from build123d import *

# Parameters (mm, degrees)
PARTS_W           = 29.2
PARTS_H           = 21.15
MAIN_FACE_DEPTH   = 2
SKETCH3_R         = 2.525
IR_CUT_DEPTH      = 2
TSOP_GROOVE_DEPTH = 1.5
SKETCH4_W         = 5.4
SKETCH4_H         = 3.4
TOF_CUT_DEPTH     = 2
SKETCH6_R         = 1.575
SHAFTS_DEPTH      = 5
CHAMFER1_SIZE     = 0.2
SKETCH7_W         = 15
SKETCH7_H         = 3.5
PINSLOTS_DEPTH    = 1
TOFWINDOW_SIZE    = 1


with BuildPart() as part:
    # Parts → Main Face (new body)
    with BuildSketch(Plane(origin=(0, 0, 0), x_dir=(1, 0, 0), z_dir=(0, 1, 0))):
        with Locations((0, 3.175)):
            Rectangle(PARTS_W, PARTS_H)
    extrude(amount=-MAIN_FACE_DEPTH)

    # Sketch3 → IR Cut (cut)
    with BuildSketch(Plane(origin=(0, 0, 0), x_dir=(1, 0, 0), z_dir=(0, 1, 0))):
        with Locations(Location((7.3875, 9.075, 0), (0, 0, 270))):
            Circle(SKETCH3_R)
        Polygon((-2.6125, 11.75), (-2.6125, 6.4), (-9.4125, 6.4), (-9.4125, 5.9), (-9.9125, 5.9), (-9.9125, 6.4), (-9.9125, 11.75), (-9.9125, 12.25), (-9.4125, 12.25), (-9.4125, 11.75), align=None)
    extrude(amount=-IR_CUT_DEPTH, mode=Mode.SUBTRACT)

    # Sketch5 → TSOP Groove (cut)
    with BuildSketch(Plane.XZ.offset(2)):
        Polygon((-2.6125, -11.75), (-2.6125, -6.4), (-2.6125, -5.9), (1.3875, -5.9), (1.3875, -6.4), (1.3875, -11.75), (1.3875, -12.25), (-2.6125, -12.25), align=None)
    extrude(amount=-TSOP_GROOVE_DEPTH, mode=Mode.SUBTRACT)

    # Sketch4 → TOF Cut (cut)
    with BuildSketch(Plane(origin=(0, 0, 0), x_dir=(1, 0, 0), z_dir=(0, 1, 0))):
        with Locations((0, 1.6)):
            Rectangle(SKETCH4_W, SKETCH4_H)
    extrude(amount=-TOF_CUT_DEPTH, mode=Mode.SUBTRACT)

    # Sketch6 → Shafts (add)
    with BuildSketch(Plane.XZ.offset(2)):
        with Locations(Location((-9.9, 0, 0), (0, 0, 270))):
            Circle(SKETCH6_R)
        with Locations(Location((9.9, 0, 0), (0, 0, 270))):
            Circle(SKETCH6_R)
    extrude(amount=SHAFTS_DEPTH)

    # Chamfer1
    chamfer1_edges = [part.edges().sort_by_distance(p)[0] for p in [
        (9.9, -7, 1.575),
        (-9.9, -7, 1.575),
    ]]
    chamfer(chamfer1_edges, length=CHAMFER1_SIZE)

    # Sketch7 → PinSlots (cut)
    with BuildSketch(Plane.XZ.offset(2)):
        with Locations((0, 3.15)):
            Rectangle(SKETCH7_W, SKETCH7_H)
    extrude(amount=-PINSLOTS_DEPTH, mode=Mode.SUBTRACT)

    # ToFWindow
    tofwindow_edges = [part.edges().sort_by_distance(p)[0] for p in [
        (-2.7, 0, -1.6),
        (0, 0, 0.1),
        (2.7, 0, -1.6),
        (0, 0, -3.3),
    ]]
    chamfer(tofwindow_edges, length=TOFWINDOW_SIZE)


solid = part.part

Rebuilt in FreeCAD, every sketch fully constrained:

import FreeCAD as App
import Part
import Sketcher


def edges_at(feature, points):
    """Names of the edges that pass closest to the given points."""
    edges = feature.Shape.Edges
    near = lambda p: min(range(len(edges)), key=lambda i: edges[i].distToShape(Part.Vertex(*p))[0])
    return sorted({f"Edge{near(p) + 1}" for p in points})


def add_polygon(sketch, points):
    """Adds a closed chain of lines whose ends are joined by coincident constraints."""
    first, n = sketch.GeometryCount, len(points)
    for a, b in zip(points, points[1:] + points[:1]):
        sketch.addGeometry(Part.LineSegment(App.Vector(*a, 0), App.Vector(*b, 0)), False)
    for i in range(n):
        sketch.addConstraint(Sketcher.Constraint("Coincident", first + i, 2, first + (i + 1) % n, 1))

doc = App.newDocument("Part")
body = doc.addObject("PartDesign::Body", "Body")

# Sketch on XZ plane
sketch1 = body.newObject("Sketcher::SketchObject", "Sketch")
sketch1.AttachmentSupport = (doc.getObject("XZ_Plane"), [""])
sketch1.MapMode = "FlatFace"
add_polygon(sketch1, [(-15, -14), (-15, 7), (15, 7), (15, -14)])  # lines 0-3
sketch1.addConstraint([
    Sketcher.Constraint("Vertical", 0),
    Sketcher.Constraint("Horizontal", 1),
    Sketcher.Constraint("Vertical", 2),
    Sketcher.Constraint("Horizontal", 3),
    Sketcher.Constraint("DistanceX", 1, 1, 1, 2, 29.2),
    Sketcher.Constraint("DistanceY", 0, 1, 0, 2, 21.15),
    Sketcher.Constraint("DistanceX", 0, 2, -1, 1, 14.6),
    Sketcher.Constraint("DistanceY", -1, 1, 0, 2, 7.4),
])
pad1 = body.newObject("PartDesign::Pad", "Pad")
pad1.Profile = sketch1
pad1.Length = 2

# Sketch on XZ plane
sketch2 = body.newObject("Sketcher::SketchObject", "Sketch001")
sketch2.AttachmentSupport = (doc.getObject("XZ_Plane"), [""])
sketch2.MapMode = "FlatFace"
sketch2.addGeometry(Part.Circle(App.Vector(7.4, -9.1, 0), App.Vector(0, 0, 1), 2.5), False)  # 0
add_polygon(sketch2, [(-2.6, -6.4), (-2.6, -11.8), (-9.4, -11.8), (-9.4, -12.2), (-9.9, -12.2), (-9.9, -5.9), (-9.4, -5.9), (-9.4, -6.4)])  # lines 1-8
sketch2.addConstraint([
    Sketcher.Constraint("Vertical", 1),
    Sketcher.Constraint("Horizontal", 2),
    Sketcher.Constraint("Vertical", 3),
    Sketcher.Constraint("Horizontal", 4),
    Sketcher.Constraint("Vertical", 5),
    Sketcher.Constraint("Horizontal", 6),
    Sketcher.Constraint("Vertical", 7),
    Sketcher.Constraint("Horizontal", 8),
    Sketcher.Constraint("Vertical", 3, 2, 6, 2),
    Sketcher.Constraint("Equal", 6, 3),
    Sketcher.Constraint("Equal", 3, 7),
    Sketcher.Constraint("Diameter", 0, 5.05),
    Sketcher.Constraint("DistanceX", 2, 2, 2, 1, 6.8),
    Sketcher.Constraint("DistanceX", 4, 2, 4, 1, 0.5),
    Sketcher.Constraint("DistanceX", 1, 2, 0, 3, 10.0),
    Sketcher.Constraint("DistanceY", 1, 2, 1, 1, 5.35),
    Sketcher.Constraint("DistanceY", 5, 2, -1, 1, 5.9),
    Sketcher.Constraint("DistanceY", 0, 3, -1, 1, 9.075),
    Sketcher.Constraint("DistanceX", -1, 1, 0, 3, 7.3875),
])
pocket1 = body.newObject("PartDesign::Pocket", "Pocket")
pocket1.Profile = sketch2
pocket1.Length = 2
pocket1.Reversed = True

# Sketch on XZ plane
sketch3 = body.newObject("Sketcher::SketchObject", "Sketch002")
sketch3.AttachmentSupport = (doc.getObject("XZ_Plane"), [""])
sketch3.MapMode = "FlatFace"
sketch3.AttachmentOffset = App.Placement(App.Vector(0, 0, 2), App.Rotation())
add_polygon(sketch3, [(-2.6, -5.9), (-2.6, -12.2), (1.4, -12.2), (1.4, -5.9)])  # lines 0-3
sketch3.addConstraint([
    Sketcher.Constraint("Vertical", 0),
    Sketcher.Constraint("Horizontal", 1),
    Sketcher.Constraint("Vertical", 2),
    Sketcher.Constraint("Horizontal", 3),
    Sketcher.Constraint("DistanceX", 1, 1, 1, 2, 4.0),
    Sketcher.Constraint("DistanceY", 0, 2, 0, 1, 6.35),
    Sketcher.Constraint("DistanceY", 2, 2, -1, 1, 5.9),
    Sketcher.Constraint("DistanceX", 0, 2, -1, 1, 2.6125),
])
pocket2 = body.newObject("PartDesign::Pocket", "Pocket001")
pocket2.Profile = sketch3
pocket2.Length = 1.5

# Sketch on XZ plane
sketch4 = body.newObject("Sketcher::SketchObject", "Sketch003")
sketch4.AttachmentSupport = (doc.getObject("XZ_Plane"), [""])
sketch4.MapMode = "FlatFace"
add_polygon(sketch4, [(-2.7, -3.3), (-2.7, 0.1), (2.7, 0.1), (2.7, -3.3)])  # lines 0-3
sketch4.addConstraint([
    Sketcher.Constraint("Vertical", 0),
    Sketcher.Constraint("Horizontal", 1),
    Sketcher.Constraint("Vertical", 2),
    Sketcher.Constraint("Horizontal", 3),
    Sketcher.Constraint("DistanceX", 1, 1, 1, 2, 5.4),
    Sketcher.Constraint("DistanceY", 0, 1, 0, 2, 3.4),
    Sketcher.Constraint("DistanceX", 0, 2, -1, 1, 2.7),
    Sketcher.Constraint("DistanceY", -1, 1, 0, 2, 0.1),
])
pocket3 = body.newObject("PartDesign::Pocket", "Pocket002")
pocket3.Profile = sketch4
pocket3.Length = 2
pocket3.Reversed = True

# Sketch on XZ plane
sketch5 = body.newObject("Sketcher::SketchObject", "Sketch004")
sketch5.AttachmentSupport = (doc.getObject("XZ_Plane"), [""])
sketch5.MapMode = "FlatFace"
sketch5.AttachmentOffset = App.Placement(App.Vector(0, 0, 2), App.Rotation())
sketch5.addGeometry([
    Part.Circle(App.Vector(-9.9, 0, 0), App.Vector(0, 0, 1), 1.6),
    Part.Circle(App.Vector(9.9, 0, 0), App.Vector(0, 0, 1), 1.6),
], False)
sketch5.addConstraint([
    Sketcher.Constraint("Equal", 0, 1),
    Sketcher.Constraint("Symmetric", 0, 3, 1, 3, -1, 1),
    Sketcher.Constraint("PointOnObject", 0, 3, -1),
    Sketcher.Constraint("Diameter", 0, 3.15),
    Sketcher.Constraint("DistanceX", 0, 3, -1, 1, 9.9),
])
pad2 = body.newObject("PartDesign::Pad", "Pad001")
pad2.Profile = sketch5
pad2.Length = 5
doc.recompute()

chamfer = body.newObject("PartDesign::Chamfer", "Chamfer")
chamfer.Base = (pad2, edges_at(pad2, [(9.9, -7, 1.575), (-9.9, -7, 1.575)]))
chamfer.Size = 0.2

# Sketch on XZ plane
sketch6 = body.newObject("Sketcher::SketchObject", "Sketch005")
sketch6.AttachmentSupport = (doc.getObject("XZ_Plane"), [""])
sketch6.MapMode = "FlatFace"
sketch6.AttachmentOffset = App.Placement(App.Vector(0, 0, 2), App.Rotation())
add_polygon(sketch6, [(-7.5, 4.9), (-7.5, 1.4), (7.5, 1.4), (7.5, 4.9)])  # lines 0-3
sketch6.addConstraint([
    Sketcher.Constraint("Vertical", 0),
    Sketcher.Constraint("Horizontal", 1),
    Sketcher.Constraint("Vertical", 2),
    Sketcher.Constraint("Horizontal", 3),
    Sketcher.Constraint("DistanceX", 1, 1, 1, 2, 15.0),
    Sketcher.Constraint("DistanceY", 0, 2, 0, 1, 3.5),
    Sketcher.Constraint("DistanceX", 0, 2, -1, 1, 7.5),
    Sketcher.Constraint("DistanceY", -1, 1, 0, 2, 1.4),
])
pocket4 = body.newObject("PartDesign::Pocket", "Pocket003")
pocket4.Profile = sketch6
pocket4.Length = 1
doc.recompute()

chamfer2 = body.newObject("PartDesign::Chamfer", "Chamfer001")
chamfer2.Base = (pocket4, edges_at(pocket4, [
    (-2.7, 0, -1.6),
    (0, 0, 0.1),
    (2.7, 0, -1.6),
    (0, 0, -3.3),
]))
chamfer2.Size = 1

doc.recompute()
